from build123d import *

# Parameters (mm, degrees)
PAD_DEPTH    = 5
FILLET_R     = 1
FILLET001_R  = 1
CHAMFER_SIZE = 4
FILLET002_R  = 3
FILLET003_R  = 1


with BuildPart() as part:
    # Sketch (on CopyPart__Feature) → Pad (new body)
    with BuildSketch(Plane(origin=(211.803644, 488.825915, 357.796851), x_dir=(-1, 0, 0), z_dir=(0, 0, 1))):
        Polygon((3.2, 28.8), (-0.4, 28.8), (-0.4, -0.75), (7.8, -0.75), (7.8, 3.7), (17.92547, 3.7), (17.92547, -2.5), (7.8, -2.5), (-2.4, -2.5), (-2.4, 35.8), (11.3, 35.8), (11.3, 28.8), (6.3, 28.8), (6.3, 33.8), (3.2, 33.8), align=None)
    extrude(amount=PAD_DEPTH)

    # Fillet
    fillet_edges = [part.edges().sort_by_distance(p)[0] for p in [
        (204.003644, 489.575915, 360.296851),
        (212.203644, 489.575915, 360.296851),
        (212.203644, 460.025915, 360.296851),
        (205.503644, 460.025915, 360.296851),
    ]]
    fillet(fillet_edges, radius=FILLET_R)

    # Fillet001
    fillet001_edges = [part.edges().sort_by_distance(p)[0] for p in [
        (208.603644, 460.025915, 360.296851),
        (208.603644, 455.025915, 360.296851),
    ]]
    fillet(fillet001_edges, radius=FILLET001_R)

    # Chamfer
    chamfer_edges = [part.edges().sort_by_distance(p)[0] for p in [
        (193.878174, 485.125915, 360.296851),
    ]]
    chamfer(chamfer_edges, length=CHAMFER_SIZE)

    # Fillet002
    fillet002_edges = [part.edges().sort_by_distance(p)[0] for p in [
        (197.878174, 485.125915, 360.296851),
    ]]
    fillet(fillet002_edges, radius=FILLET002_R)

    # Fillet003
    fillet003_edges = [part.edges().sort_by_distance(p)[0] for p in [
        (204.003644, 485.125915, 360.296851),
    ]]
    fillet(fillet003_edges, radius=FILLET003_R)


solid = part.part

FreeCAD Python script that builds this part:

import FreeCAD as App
import Part
import Sketcher


def edges_at(feature, points):
    """Names of the edges that pass closest to the given points."""
    edges = feature.Shape.Edges
    near = lambda p: min(range(len(edges)), key=lambda i: edges[i].distToShape(Part.Vertex(*p))[0])
    return sorted({f"Edge{near(p) + 1}" for p in points})


def add_polygon(sketch, points):
    """Adds a closed chain of lines whose ends are joined by coincident constraints."""
    first, n = sketch.GeometryCount, len(points)
    for a, b in zip(points, points[1:] + points[:1]):
        sketch.addGeometry(Part.LineSegment(App.Vector(*a, 0), App.Vector(*b, 0)), False)
    for i in range(n):
        sketch.addConstraint(Sketcher.Constraint("Coincident", first + i, 2, first + (i + 1) % n, 1))

doc = App.newDocument("Part")
body = doc.addObject("PartDesign::Body", "Body")

sketch1 = body.newObject("Sketcher::SketchObject", "Sketch")
sketch1.AttachmentSupport = (doc.getObject("XY_Plane"), [""])
sketch1.MapMode = "FlatFace"
sketch1.AttachmentOffset = App.Placement(App.Vector(0, 0, 357.796851), App.Rotation())
add_polygon(sketch1, [(212.203644, 460.025915), (208.603644, 460.025915), (208.603644, 455.025915), (205.503644, 455.025915), (205.503644, 460.025915), (200.503644, 460.025915), (200.503644, 453.025915), (214.203644, 453.025915), (214.203644, 491.325915), (193.878174, 491.325915), (193.878174, 485.125915), (204.003644, 485.125915), (204.003644, 489.575915), (212.203644, 489.575915)])
sketch1.addConstraint([
    Sketcher.Constraint("Horizontal", 0),
    Sketcher.Constraint("Vertical", 1),
    Sketcher.Constraint("Horizontal", 2),
    Sketcher.Constraint("Vertical", 3),
    Sketcher.Constraint("Horizontal", 4),
    Sketcher.Constraint("Vertical", 5),
    Sketcher.Constraint("Horizontal", 6),
    Sketcher.Constraint("Vertical", 7),
    Sketcher.Constraint("Horizontal", 8),
    Sketcher.Constraint("Vertical", 9),
    Sketcher.Constraint("Horizontal", 10),
    Sketcher.Constraint("Vertical", 11),
    Sketcher.Constraint("Horizontal", 12),
    Sketcher.Constraint("Vertical", 13),
    Sketcher.Constraint("Horizontal", 0, 2, 3, 2),
    Sketcher.Constraint("Equal", 4, 1),
    Sketcher.Constraint("DistanceX", 4, 2, 4, 1, 5.0),
    Sketcher.Constraint("DistanceY", 5, 2, 5, 1, 7.0),
    Sketcher.Constraint("DistanceX", 0, 2, 0, 1, 3.6),
    Sketcher.Constraint("DistanceX", 2, 2, 2, 1, 3.1),
    Sketcher.Constraint("DistanceX", 6, 1, 6, 2, 13.7),
    Sketcher.Constraint("DistanceX", 12, 1, 12, 2, 8.2),
    Sketcher.Constraint("DistanceY", 7, 1, 7, 2, 38.3),
    Sketcher.Constraint("DistanceY", 9, 2, 9, 1, 6.2),
    Sketcher.Constraint("DistanceY", 11, 1, 11, 2, 4.45),
    Sketcher.Constraint("DistanceX", 8, 2, 8, 1, 20.32547),
    Sketcher.Constraint("DistanceX", -1, 1, 0, 2, 208.603644),
    Sketcher.Constraint("DistanceY", -1, 1, 0, 2, 460.025915),
])
pad1 = body.newObject("PartDesign::Pad", "Pad")
pad1.Profile = sketch1
pad1.Length = 5
doc.recompute()

fillet = body.newObject("PartDesign::Fillet", "Fillet")
fillet.Base = (pad1, edges_at(pad1, [
    (204.004, 489.576, 360.297),
    (212.204, 489.576, 360.297),
    (212.204, 460.026, 360.297),
    (205.504, 460.026, 360.297),
]))
fillet.Radius = 1
doc.recompute()

fillet2 = body.newObject("PartDesign::Fillet", "Fillet001")
fillet2.Base = (fillet, edges_at(fillet, [(208.604, 460.026, 360.297), (208.604, 455.026, 360.297)]))
fillet2.Radius = 1
doc.recompute()

chamfer = body.newObject("PartDesign::Chamfer", "Chamfer")
chamfer.Base = (fillet2, edges_at(fillet2, [(193.878, 485.126, 360.297)]))
chamfer.Size = 4
doc.recompute()

fillet3 = body.newObject("PartDesign::Fillet", "Fillet002")
fillet3.Base = (chamfer, edges_at(chamfer, [(197.878, 485.126, 360.297)]))
fillet3.Radius = 3
doc.recompute()

fillet4 = body.newObject("PartDesign::Fillet", "Fillet003")
fillet4.Base = (fillet3, edges_at(fillet3, [(204.004, 485.126, 360.297)]))
fillet4.Radius = 1

doc.recompute()
